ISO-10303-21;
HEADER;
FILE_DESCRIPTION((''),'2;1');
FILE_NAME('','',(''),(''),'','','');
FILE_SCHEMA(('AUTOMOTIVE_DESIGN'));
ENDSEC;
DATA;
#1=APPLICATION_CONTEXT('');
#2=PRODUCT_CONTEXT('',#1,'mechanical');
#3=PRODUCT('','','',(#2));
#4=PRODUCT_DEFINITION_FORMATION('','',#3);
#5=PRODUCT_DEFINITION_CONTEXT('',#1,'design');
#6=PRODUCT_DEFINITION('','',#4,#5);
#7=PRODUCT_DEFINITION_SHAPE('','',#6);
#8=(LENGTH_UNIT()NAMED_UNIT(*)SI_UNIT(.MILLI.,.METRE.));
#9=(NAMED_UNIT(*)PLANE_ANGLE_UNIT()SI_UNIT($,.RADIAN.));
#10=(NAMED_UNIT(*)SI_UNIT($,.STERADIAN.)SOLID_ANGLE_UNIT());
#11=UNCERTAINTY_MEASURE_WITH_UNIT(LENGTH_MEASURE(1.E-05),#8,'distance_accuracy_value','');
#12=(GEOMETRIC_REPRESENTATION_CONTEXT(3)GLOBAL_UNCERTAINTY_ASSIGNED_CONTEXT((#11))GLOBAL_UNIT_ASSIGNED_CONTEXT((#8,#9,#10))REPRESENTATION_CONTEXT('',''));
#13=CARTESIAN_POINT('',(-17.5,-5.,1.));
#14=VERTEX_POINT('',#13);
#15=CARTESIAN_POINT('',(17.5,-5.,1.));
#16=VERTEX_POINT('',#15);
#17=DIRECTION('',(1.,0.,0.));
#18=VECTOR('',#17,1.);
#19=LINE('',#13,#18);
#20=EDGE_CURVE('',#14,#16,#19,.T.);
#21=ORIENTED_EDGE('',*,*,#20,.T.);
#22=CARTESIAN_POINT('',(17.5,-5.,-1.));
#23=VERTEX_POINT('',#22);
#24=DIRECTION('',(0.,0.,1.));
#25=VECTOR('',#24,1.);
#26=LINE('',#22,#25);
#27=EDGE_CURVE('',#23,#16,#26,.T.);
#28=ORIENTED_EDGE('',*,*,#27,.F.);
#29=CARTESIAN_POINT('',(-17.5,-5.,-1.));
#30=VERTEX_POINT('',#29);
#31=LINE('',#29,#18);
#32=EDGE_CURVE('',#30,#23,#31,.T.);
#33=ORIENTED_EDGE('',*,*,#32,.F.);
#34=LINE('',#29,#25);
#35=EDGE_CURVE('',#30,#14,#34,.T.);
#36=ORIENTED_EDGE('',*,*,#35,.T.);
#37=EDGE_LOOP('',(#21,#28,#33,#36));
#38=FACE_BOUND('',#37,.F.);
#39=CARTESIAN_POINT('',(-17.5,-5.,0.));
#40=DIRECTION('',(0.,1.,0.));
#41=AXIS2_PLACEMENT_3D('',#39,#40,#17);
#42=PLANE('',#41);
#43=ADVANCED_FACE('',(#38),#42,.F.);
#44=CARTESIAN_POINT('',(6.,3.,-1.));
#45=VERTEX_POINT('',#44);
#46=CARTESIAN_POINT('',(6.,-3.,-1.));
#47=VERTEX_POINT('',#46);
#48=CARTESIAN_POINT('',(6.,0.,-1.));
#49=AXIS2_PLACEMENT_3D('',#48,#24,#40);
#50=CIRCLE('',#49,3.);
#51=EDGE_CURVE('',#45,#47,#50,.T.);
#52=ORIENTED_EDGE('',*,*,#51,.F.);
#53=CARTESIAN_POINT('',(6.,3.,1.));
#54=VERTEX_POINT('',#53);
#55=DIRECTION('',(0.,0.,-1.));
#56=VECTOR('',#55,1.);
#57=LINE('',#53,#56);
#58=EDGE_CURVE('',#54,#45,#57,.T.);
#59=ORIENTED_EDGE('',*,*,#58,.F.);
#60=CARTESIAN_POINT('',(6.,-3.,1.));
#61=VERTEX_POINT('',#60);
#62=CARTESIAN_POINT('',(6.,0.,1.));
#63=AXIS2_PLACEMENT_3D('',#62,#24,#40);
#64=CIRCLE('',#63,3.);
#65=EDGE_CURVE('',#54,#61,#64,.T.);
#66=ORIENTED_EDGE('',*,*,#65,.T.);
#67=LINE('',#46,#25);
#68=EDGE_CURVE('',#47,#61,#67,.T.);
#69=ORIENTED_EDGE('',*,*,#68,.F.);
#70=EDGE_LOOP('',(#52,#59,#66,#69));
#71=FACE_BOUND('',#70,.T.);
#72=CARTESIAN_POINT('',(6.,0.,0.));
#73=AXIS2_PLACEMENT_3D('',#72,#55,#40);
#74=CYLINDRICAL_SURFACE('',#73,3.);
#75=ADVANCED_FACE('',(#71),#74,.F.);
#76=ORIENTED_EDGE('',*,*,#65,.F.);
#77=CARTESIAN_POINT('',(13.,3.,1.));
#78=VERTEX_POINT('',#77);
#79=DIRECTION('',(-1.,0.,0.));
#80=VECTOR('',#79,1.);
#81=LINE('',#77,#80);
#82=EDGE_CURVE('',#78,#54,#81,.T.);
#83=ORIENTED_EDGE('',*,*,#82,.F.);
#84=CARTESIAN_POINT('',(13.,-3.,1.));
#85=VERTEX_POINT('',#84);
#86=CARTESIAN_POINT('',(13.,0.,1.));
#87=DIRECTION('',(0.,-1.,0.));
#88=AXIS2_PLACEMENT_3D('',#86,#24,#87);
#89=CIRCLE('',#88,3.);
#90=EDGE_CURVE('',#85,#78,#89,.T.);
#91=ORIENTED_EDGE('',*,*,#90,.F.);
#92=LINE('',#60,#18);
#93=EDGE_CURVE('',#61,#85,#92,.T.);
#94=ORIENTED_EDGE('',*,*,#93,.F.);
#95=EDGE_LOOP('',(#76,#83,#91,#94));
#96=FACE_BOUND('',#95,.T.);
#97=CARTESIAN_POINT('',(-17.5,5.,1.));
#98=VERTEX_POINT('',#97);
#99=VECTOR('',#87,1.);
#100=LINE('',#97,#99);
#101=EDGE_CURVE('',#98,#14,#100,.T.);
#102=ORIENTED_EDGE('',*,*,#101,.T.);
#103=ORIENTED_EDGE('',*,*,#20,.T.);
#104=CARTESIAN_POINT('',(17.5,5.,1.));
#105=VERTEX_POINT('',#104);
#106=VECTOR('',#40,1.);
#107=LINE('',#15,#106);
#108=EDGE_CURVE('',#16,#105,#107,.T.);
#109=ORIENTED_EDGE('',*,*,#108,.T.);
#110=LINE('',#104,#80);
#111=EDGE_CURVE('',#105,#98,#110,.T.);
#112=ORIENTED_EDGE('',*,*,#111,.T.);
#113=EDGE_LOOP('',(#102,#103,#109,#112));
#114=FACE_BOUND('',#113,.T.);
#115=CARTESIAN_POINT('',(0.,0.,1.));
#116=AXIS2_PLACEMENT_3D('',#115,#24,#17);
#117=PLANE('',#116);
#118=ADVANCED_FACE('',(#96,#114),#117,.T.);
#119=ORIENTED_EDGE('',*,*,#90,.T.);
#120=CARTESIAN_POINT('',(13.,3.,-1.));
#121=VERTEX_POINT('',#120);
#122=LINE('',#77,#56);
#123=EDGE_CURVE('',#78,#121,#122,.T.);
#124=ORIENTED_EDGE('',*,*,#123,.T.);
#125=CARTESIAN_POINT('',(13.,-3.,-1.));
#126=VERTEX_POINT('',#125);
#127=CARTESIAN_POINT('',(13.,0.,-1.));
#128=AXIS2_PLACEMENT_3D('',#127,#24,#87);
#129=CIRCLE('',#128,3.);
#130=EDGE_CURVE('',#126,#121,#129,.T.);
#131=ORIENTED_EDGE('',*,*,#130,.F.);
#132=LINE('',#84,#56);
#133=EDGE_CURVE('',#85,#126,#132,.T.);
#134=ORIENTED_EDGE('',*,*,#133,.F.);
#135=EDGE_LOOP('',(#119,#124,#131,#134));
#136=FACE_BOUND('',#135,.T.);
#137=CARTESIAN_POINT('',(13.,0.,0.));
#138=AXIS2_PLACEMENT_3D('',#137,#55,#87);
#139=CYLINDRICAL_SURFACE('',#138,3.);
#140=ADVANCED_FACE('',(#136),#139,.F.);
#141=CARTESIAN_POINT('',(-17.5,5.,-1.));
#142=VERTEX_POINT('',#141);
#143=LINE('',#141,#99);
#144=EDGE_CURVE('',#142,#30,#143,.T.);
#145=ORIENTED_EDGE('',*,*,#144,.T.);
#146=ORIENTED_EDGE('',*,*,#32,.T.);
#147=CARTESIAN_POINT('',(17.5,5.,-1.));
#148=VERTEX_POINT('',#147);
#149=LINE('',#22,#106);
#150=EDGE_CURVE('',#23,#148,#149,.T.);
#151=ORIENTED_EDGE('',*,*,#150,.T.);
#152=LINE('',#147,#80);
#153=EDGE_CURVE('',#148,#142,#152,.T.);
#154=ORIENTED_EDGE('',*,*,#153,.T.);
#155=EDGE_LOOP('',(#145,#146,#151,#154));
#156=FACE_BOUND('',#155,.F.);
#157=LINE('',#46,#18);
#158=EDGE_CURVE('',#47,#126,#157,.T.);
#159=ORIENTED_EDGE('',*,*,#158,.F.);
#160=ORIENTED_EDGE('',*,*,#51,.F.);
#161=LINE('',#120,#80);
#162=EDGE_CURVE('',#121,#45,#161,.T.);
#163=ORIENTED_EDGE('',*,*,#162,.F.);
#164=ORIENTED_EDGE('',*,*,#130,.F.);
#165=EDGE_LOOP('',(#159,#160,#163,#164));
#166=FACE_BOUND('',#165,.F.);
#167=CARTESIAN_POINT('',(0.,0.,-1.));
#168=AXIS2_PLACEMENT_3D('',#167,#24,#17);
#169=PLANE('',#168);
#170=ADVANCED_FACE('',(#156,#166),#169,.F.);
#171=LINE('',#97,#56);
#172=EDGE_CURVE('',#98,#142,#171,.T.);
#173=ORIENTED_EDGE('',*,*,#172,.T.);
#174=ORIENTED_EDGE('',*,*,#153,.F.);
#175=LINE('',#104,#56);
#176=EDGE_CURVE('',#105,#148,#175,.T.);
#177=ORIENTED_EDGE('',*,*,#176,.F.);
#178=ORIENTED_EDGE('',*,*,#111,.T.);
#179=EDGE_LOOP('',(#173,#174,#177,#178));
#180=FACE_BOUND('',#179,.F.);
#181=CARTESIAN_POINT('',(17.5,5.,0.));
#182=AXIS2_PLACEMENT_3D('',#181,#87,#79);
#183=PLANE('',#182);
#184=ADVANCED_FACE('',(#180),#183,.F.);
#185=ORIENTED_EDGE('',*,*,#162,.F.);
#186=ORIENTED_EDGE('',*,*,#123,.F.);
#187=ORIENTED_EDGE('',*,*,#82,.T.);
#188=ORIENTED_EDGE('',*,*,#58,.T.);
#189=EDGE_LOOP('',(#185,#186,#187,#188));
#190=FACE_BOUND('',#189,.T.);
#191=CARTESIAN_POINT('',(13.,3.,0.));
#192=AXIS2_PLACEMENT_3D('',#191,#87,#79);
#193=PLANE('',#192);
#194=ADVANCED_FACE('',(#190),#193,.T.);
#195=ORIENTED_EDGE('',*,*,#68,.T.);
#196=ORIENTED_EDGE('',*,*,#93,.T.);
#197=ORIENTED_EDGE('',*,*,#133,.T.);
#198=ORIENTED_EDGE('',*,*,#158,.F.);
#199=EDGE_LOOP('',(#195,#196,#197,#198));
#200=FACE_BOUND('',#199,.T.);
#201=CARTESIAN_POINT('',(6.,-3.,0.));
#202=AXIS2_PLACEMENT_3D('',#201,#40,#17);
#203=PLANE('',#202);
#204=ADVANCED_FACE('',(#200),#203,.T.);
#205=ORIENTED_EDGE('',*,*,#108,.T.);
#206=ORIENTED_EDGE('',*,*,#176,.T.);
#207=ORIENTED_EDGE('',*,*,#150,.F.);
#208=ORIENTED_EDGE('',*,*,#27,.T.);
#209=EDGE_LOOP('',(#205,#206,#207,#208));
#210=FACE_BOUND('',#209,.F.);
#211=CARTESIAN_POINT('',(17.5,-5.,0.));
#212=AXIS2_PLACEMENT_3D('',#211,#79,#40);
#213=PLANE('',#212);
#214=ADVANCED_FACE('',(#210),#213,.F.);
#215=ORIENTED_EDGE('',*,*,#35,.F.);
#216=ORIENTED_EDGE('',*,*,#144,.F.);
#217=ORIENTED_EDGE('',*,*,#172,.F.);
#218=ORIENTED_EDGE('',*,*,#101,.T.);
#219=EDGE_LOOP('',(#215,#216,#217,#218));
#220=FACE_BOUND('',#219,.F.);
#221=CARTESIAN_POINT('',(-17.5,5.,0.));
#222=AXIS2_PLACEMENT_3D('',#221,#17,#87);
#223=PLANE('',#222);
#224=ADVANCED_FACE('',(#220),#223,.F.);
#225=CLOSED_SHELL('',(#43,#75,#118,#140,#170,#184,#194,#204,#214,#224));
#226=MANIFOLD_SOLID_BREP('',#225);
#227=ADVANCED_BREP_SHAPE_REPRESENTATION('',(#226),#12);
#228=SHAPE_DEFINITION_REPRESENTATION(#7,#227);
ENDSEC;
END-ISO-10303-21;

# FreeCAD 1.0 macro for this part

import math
import FreeCAD as App
import Part
import Sketcher
from FreeCAD import Vector


def add_polygon(sketch, points):
    """Adds a closed chain of lines whose ends are joined by coincident constraints."""
    first, n = sketch.GeometryCount, len(points)
    for a, b in zip(points, points[1:] + points[:1]):
        sketch.addGeometry(Part.LineSegment(App.Vector(*a, 0), App.Vector(*b, 0)), False)
    for i in range(n):
        sketch.addConstraint(Sketcher.Constraint("Coincident", first + i, 2, first + (i + 1) % n, 1))

doc = App.newDocument("Part")
body = doc.addObject("PartDesign::Body", "Body")

# Sketch on XY plane
sketch1 = body.newObject("Sketcher::SketchObject", "Sketch")
sketch1.AttachmentSupport = (doc.getObject("XY_Plane"), [""])
sketch1.MapMode = "FlatFace"
add_polygon(sketch1, [(-17.5, 5), (-17.5, -5), (17.5, -5), (17.5, 5)])  # lines 0-3
sketch1.addGeometry(Part.LineSegment(Vector(13, -3, 0), Vector(6, -3, 0)), False)  # 4
sketch1.addGeometry(Part.ArcOfCircle(Part.Circle(Vector(6, 0, 0), Vector(0, 0, 1), 3), math.radians(90), math.radians(270)), False)  # 5
sketch1.addGeometry(Part.LineSegment(Vector(6, 3, 0), Vector(13, 3, 0)), False)  # 6
sketch1.addGeometry(Part.ArcOfCircle(Part.Circle(Vector(13, 0, 0), Vector(0, 0, 1), 3), math.radians(-90), math.radians(90)), False)  # 7
sketch1.addConstraint([
    Sketcher.Constraint("Tangent", 4, 2, 5, 2),
    Sketcher.Constraint("Tangent", 5, 1, 6, 1),
    Sketcher.Constraint("Tangent", 6, 2, 7, 2),
    Sketcher.Constraint("Tangent", 7, 1, 4, 1),
    Sketcher.Constraint("Vertical", 0),
    Sketcher.Constraint("Horizontal", 1),
    Sketcher.Constraint("Vertical", 2),
    Sketcher.Constraint("Horizontal", 3),
    Sketcher.Constraint("Horizontal", 4),
    Sketcher.Constraint("Horizontal", 6),
    Sketcher.Constraint("Symmetric", 0, 2, 2, 2, -1, 1),
    Sketcher.Constraint("PointOnObject", 5, 3, -1),
    Sketcher.Constraint("Radius", 5, 3.0),
    Sketcher.Constraint("DistanceX", 1, 1, 1, 2, 35.0),
    Sketcher.Constraint("DistanceX", 4, 2, 4, 1, 7.0),
    Sketcher.Constraint("DistanceY", 0, 2, 0, 1, 10.0),
    Sketcher.Constraint("DistanceX", -1, 1, 5, 3, 6.0),
])
pad1 = body.newObject("PartDesign::Pad", "Pad")
pad1.Profile = sketch1
pad1.Length = 2
pad1.Midplane = True

doc.recompute()
